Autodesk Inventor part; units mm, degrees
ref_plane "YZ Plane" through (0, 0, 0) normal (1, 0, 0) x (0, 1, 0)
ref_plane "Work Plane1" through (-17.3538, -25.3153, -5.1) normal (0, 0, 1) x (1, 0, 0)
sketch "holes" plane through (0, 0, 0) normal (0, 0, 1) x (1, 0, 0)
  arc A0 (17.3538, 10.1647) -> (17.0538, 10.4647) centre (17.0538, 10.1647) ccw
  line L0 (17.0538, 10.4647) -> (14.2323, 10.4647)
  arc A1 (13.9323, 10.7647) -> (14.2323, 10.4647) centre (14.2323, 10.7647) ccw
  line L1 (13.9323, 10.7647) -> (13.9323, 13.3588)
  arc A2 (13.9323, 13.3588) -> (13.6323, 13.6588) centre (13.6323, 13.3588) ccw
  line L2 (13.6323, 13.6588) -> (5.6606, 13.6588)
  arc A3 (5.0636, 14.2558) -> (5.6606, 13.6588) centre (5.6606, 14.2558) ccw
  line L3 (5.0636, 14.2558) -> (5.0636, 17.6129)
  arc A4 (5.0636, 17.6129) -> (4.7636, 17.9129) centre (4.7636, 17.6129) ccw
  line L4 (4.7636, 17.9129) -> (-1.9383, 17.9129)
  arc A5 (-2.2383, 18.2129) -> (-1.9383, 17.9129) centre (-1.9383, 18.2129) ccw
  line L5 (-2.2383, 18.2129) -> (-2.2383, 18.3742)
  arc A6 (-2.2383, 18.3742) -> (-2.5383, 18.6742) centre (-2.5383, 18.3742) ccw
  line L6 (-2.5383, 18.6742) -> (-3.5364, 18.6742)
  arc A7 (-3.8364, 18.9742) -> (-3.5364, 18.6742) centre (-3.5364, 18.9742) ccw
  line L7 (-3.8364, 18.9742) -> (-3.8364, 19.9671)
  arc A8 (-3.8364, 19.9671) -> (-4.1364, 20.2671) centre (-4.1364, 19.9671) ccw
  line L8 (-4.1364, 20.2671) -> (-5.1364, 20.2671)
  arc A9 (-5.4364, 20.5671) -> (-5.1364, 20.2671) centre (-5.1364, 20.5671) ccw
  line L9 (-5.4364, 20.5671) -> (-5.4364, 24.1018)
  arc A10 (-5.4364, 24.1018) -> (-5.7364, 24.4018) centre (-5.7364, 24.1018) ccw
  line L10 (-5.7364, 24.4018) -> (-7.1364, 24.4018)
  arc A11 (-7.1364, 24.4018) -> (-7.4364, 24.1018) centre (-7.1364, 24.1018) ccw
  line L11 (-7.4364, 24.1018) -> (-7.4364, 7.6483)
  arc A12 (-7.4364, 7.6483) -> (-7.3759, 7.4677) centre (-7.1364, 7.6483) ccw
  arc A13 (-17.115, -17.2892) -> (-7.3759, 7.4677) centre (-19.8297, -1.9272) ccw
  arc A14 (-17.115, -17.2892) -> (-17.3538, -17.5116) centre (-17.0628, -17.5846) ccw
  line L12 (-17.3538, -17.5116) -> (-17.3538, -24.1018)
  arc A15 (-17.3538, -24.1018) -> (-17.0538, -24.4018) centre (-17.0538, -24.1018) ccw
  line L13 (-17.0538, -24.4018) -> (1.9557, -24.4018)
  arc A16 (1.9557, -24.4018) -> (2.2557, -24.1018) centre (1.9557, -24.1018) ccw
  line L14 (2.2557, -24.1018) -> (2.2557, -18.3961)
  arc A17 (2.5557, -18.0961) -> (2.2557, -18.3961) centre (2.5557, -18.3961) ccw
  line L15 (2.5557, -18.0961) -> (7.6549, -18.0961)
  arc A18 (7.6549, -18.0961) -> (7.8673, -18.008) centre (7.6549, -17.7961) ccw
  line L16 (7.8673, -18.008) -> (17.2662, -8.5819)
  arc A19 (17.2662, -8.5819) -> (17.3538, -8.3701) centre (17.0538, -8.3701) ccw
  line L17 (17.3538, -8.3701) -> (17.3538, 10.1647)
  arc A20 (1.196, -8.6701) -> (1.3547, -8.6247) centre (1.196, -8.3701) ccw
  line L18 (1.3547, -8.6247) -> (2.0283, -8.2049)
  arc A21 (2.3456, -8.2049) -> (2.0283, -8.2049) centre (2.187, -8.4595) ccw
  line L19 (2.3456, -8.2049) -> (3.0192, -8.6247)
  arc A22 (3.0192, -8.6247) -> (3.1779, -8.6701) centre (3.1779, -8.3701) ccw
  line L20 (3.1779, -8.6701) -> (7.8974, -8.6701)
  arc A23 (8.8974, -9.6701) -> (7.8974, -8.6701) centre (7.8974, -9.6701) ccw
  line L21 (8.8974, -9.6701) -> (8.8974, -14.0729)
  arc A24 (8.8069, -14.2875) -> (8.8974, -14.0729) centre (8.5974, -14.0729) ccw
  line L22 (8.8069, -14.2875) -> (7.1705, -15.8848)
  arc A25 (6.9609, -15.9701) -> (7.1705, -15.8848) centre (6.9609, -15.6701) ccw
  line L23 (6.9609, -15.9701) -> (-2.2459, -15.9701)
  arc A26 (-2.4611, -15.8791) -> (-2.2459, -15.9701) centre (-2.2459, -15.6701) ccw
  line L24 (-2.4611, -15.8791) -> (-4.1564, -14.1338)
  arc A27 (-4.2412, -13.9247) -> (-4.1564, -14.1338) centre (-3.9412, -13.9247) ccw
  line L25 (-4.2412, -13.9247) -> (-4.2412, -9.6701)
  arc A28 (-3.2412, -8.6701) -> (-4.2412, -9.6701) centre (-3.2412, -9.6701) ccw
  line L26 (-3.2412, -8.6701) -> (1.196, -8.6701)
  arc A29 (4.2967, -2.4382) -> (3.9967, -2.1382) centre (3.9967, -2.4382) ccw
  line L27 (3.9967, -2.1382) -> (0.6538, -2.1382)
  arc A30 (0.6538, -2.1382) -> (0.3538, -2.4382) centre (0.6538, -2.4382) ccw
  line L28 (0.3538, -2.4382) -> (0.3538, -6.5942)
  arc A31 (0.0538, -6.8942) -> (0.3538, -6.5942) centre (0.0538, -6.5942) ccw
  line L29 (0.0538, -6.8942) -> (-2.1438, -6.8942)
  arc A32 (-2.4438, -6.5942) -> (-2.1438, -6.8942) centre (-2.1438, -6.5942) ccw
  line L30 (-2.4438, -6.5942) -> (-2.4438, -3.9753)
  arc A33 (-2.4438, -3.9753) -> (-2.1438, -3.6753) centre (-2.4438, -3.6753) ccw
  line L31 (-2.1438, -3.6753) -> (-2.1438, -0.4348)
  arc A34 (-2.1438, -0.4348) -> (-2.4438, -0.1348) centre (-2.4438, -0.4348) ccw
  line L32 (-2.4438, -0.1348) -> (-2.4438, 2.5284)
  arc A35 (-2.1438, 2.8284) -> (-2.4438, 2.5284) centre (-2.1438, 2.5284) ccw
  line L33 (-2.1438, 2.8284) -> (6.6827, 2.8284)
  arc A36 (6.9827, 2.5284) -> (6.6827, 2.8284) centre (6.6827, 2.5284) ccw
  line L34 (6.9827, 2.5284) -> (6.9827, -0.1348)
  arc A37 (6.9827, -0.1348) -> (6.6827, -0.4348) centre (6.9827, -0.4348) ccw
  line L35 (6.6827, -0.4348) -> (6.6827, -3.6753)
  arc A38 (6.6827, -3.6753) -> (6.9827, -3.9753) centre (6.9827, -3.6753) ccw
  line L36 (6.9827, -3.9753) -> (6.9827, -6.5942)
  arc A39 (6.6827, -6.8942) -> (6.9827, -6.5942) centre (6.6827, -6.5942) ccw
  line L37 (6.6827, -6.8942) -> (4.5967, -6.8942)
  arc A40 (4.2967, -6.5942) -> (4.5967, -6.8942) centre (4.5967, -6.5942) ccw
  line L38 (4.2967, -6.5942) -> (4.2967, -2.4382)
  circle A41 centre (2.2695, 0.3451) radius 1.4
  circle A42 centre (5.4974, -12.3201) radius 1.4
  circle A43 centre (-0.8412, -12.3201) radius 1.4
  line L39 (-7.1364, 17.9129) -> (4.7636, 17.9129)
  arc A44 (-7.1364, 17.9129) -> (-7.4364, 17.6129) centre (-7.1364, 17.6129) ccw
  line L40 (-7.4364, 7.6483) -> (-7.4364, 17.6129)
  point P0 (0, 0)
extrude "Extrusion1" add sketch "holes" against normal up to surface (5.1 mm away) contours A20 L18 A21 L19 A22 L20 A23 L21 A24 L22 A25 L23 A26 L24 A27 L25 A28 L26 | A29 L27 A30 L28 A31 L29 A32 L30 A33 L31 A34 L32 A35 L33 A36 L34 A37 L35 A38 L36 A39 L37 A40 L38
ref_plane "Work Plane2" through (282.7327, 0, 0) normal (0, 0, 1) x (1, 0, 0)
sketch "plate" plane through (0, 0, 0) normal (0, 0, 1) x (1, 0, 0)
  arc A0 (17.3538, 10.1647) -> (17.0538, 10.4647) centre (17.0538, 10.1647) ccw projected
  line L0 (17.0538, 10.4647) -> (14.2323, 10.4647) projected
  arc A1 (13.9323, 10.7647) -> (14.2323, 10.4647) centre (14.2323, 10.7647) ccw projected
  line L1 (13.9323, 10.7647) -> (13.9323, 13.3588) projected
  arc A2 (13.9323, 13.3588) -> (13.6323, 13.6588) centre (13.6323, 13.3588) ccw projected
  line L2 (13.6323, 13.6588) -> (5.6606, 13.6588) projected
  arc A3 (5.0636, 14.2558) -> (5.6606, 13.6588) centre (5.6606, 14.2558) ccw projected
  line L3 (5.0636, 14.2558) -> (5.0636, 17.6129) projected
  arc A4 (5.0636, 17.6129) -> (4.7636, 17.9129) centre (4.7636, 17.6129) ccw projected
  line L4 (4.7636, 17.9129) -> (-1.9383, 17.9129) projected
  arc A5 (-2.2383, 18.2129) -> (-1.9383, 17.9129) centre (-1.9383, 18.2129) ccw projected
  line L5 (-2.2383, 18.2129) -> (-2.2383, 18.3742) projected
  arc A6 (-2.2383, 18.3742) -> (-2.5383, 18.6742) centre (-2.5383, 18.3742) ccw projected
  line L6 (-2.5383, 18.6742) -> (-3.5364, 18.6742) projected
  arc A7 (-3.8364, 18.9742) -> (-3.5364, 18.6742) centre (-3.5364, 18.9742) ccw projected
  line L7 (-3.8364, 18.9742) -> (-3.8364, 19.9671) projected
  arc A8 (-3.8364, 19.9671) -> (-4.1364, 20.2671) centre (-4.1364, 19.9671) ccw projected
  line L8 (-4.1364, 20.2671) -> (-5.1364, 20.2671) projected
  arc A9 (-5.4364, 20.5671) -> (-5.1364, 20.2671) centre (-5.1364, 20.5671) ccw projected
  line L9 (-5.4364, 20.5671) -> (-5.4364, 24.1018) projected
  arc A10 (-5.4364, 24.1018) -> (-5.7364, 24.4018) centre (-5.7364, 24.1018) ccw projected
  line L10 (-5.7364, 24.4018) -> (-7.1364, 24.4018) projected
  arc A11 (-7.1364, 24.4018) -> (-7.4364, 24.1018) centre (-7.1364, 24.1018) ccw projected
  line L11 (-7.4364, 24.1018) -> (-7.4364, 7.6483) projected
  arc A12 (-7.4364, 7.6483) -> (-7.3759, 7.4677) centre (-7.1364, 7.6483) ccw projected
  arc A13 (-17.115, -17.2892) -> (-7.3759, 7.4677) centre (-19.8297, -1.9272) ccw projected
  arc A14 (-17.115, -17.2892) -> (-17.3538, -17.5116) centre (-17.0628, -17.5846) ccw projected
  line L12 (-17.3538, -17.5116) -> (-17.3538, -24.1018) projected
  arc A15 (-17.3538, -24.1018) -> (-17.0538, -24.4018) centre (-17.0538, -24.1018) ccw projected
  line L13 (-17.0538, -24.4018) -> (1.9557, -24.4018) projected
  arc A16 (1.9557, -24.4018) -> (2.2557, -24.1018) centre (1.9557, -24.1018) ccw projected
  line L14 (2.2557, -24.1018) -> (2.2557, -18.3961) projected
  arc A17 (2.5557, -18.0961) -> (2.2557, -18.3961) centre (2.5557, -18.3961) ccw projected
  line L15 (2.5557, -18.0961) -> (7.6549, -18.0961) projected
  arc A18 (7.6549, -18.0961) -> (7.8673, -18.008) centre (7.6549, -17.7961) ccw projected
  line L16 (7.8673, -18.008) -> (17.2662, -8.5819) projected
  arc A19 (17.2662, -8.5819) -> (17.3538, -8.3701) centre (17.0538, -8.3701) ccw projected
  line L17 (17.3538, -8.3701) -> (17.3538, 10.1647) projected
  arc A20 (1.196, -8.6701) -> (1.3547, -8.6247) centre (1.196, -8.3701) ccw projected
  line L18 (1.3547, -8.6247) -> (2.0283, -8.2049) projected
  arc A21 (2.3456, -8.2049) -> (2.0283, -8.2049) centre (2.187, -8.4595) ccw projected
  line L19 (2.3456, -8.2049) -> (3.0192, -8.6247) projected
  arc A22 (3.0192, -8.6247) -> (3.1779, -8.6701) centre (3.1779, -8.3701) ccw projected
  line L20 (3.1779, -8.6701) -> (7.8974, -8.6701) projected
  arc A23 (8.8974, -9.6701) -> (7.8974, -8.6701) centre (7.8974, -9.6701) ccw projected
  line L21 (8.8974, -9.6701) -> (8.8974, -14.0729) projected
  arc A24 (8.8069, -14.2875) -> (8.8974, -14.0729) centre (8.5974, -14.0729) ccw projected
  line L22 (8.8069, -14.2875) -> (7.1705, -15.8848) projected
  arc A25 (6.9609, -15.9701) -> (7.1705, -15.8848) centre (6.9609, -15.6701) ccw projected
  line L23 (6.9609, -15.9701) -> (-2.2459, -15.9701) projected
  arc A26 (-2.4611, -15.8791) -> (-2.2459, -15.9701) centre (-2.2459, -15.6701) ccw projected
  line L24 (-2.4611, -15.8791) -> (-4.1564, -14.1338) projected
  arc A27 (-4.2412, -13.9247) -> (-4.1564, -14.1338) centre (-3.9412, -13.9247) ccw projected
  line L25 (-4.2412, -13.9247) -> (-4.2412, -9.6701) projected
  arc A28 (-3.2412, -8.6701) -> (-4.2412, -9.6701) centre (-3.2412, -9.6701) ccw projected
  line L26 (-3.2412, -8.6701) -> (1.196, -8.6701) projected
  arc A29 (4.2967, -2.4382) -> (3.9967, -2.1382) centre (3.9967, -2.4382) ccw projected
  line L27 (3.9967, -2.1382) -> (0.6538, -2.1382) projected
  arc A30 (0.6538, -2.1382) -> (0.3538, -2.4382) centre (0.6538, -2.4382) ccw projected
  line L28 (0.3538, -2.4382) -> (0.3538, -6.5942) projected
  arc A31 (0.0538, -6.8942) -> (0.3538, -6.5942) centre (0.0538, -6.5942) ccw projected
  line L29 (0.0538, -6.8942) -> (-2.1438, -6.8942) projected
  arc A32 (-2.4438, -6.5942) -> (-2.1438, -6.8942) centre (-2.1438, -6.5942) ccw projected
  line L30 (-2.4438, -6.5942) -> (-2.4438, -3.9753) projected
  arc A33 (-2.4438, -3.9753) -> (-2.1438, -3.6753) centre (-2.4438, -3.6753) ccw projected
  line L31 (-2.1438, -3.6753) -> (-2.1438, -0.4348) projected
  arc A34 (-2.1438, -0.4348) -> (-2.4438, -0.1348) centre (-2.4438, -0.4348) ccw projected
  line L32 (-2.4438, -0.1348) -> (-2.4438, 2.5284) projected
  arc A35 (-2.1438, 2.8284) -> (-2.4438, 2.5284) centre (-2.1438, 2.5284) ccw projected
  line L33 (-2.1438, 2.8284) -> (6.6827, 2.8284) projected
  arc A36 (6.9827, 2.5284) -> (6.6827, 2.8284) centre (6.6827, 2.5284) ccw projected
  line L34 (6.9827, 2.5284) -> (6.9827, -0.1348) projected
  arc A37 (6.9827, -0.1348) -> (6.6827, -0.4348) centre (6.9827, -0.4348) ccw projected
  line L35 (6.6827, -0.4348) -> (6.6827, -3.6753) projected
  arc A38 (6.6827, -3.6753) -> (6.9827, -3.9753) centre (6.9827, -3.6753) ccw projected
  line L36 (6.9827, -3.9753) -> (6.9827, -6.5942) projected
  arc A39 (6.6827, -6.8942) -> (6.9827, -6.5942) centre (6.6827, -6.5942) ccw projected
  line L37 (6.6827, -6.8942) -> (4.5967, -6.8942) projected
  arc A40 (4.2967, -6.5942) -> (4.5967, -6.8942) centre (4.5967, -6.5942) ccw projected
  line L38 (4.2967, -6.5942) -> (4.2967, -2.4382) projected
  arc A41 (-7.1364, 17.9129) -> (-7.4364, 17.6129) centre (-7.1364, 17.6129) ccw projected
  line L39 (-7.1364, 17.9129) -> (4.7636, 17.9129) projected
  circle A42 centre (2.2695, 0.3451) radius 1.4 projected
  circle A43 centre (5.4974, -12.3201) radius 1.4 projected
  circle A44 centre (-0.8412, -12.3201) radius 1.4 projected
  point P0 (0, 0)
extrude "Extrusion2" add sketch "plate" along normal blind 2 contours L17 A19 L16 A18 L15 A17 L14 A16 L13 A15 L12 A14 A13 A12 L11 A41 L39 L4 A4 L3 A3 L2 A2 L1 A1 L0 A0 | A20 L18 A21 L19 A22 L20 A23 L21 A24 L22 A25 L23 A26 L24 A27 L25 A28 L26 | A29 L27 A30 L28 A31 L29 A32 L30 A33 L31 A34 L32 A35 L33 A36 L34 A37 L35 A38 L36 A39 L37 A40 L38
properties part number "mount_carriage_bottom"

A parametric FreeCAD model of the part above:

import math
import FreeCAD as App
import Part
import Sketcher
from FreeCAD import Vector

doc = App.newDocument("Part")
body = doc.addObject("PartDesign::Body", "Body")
body.AllowCompound = True

sketch1 = doc.addObject("Sketcher::SketchObject", "Sketch")
body.addObject(sketch1)
sketch1.AttachmentSupport = (doc.XY_Plane, [""])
sketch1.MapMode = "FlatFace"
sketch1.addGeometry([
    Part.ArcOfCircle(Part.Circle(Vector(1.196, -8.3701, 0), Vector(0, 0, 1), 0.3), math.radians(-90), math.radians(-58.063445)),
    Part.LineSegment(Vector(1.196, -8.6701, 0), Vector(-3.2412, -8.6701, 0)),
    Part.ArcOfCircle(Part.Circle(Vector(-3.2412, -9.6701, 0), Vector(0, 0, 1), 1), math.radians(90), math.radians(180)),
    Part.LineSegment(Vector(-4.2412, -9.6701, 0), Vector(-4.2412, -13.9247, 0)),
    Part.ArcOfCircle(Part.Circle(Vector(-3.9412, -13.9247, 0), Vector(0, 0, 1), 0.3), math.radians(180), math.radians(224.176337)),
    Part.LineSegment(Vector(-4.1564, -14.1338, 0), Vector(-2.4611, -15.8791, 0)),
    Part.ArcOfCircle(Part.Circle(Vector(-2.2459, -15.6701, 0), Vector(0, 0, 1), 0.299987), math.radians(-135.837361), math.radians(-90)),
    Part.LineSegment(Vector(-2.2459, -15.9701, 0), Vector(6.9609, -15.9701, 0)),
    Part.ArcOfCircle(Part.Circle(Vector(6.9609, -15.6701, 0), Vector(0, 0, 1), 0.3), math.radians(-90), math.radians(-45.68865)),
    Part.LineSegment(Vector(7.1705, -15.8848, 0), Vector(8.8069, -14.2875, 0)),
    Part.ArcOfCircle(Part.Circle(Vector(8.5974, -14.0729, 0), Vector(0, 0, 1), 0.299906), math.radians(-45.688975), math.radians(0)),
    Part.LineSegment(Vector(8.8974, -14.0729, 0), Vector(8.8974, -9.6701, 0)),
    Part.ArcOfCircle(Part.Circle(Vector(7.8974, -9.6701, 0), Vector(0, 0, 1), 1), math.radians(0), math.radians(90)),
    Part.LineSegment(Vector(7.8974, -8.6701, 0), Vector(3.1779, -8.6701, 0)),
    Part.ArcOfCircle(Part.Circle(Vector(3.1779, -8.3701, 0), Vector(0, 0, 1), 0.300011), math.radians(-121.936555), math.radians(-90)),
    Part.LineSegment(Vector(3.0192, -8.6247, 0), Vector(2.3456, -8.2049, 0)),
    Part.ArcOfCircle(Part.Circle(Vector(2.187, -8.4595, 0), Vector(0, 0, 1), 0.299959), math.radians(58.079655), math.radians(121.936555)),
    Part.LineSegment(Vector(2.0283, -8.2049, 0), Vector(1.3547, -8.6247, 0)),
    Part.Circle(Vector(-0.8412, -12.3201, 0), Vector(0, 0, 1), 1.4),
    Part.Circle(Vector(5.4974, -12.3201, 0), Vector(0, 0, 1), 1.4),
    Part.ArcOfCircle(Part.Circle(Vector(3.9967, -2.4382, 0), Vector(0, 0, 1), 0.3), math.radians(0), math.radians(90)),
    Part.LineSegment(Vector(4.2967, -2.4382, 0), Vector(4.2967, -6.5942, 0)),
    Part.ArcOfCircle(Part.Circle(Vector(4.5967, -6.5942, 0), Vector(0, 0, 1), 0.3), math.radians(180), math.radians(270)),
    Part.LineSegment(Vector(4.5967, -6.8942, 0), Vector(6.6827, -6.8942, 0)),
    Part.ArcOfCircle(Part.Circle(Vector(6.6827, -6.5942, 0), Vector(0, 0, 1), 0.3), math.radians(-90), math.radians(0)),
    Part.LineSegment(Vector(6.9827, -6.5942, 0), Vector(6.9827, -3.9753, 0)),
    Part.ArcOfCircle(Part.Circle(Vector(6.9827, -3.6753, 0), Vector(0, 0, 1), 0.3), math.radians(180), math.radians(270)),
    Part.LineSegment(Vector(6.6827, -3.6753, 0), Vector(6.6827, -0.4348, 0)),
    Part.ArcOfCircle(Part.Circle(Vector(6.9827, -0.4348, 0), Vector(0, 0, 1), 0.3), math.radians(90), math.radians(180)),
    Part.LineSegment(Vector(6.9827, -0.1348, 0), Vector(6.9827, 2.5284, 0)),
    Part.ArcOfCircle(Part.Circle(Vector(6.6827, 2.5284, 0), Vector(0, 0, 1), 0.3), math.radians(0), math.radians(90)),
    Part.LineSegment(Vector(6.6827, 2.8284, 0), Vector(-2.1438, 2.8284, 0)),
    Part.ArcOfCircle(Part.Circle(Vector(-2.1438, 2.5284, 0), Vector(0, 0, 1), 0.3), math.radians(90), math.radians(180)),
    Part.LineSegment(Vector(-2.4438, 2.5284, 0), Vector(-2.4438, -0.1348, 0)),
    Part.ArcOfCircle(Part.Circle(Vector(-2.4438, -0.4348, 0), Vector(0, 0, 1), 0.3), math.radians(0), math.radians(90)),
    Part.LineSegment(Vector(-2.1438, -0.4348, 0), Vector(-2.1438, -3.6753, 0)),
    Part.ArcOfCircle(Part.Circle(Vector(-2.4438, -3.6753, 0), Vector(0, 0, 1), 0.3), math.radians(-90), math.radians(0)),
    Part.LineSegment(Vector(-2.4438, -3.9753, 0), Vector(-2.4438, -6.5942, 0)),
    Part.ArcOfCircle(Part.Circle(Vector(-2.1438, -6.5942, 0), Vector(0, 0, 1), 0.3), math.radians(180), math.radians(270)),
    Part.LineSegment(Vector(-2.1438, -6.8942, 0), Vector(0.0538, -6.8942, 0)),
    Part.ArcOfCircle(Part.Circle(Vector(0.0538, -6.5942, 0), Vector(0, 0, 1), 0.3), math.radians(-90), math.radians(0)),
    Part.LineSegment(Vector(0.3538, -6.5942, 0), Vector(0.3538, -2.4382, 0)),
    Part.ArcOfCircle(Part.Circle(Vector(0.6538, -2.4382, 0), Vector(0, 0, 1), 0.3), math.radians(90), math.radians(180)),
    Part.LineSegment(Vector(0.6538, -2.1382, 0), Vector(3.9967, -2.1382, 0)),
    Part.Circle(Vector(2.2695, 0.3451, 0), Vector(0, 0, 1), 1.4),
], False)
sketch1.addConstraint([
    Sketcher.Constraint("Tangent", 0, 1, 1, 1),
    Sketcher.Constraint("Tangent", 1, 2, 2, 1),
    Sketcher.Constraint("Tangent", 2, 2, 3, 1),
    Sketcher.Constraint("Tangent", 3, 2, 4, 1),
    Sketcher.Constraint("Tangent", 4, 2, 5, 1),
    Sketcher.Constraint("Tangent", 5, 2, 6, 1),
    Sketcher.Constraint("Tangent", 6, 2, 7, 1),
    Sketcher.Constraint("Tangent", 7, 2, 8, 1),
    Sketcher.Constraint("Tangent", 8, 2, 9, 1),
    Sketcher.Constraint("Tangent", 9, 2, 10, 1),
    Sketcher.Constraint("Tangent", 10, 2, 11, 1),
    Sketcher.Constraint("Tangent", 11, 2, 12, 1),
    Sketcher.Constraint("Tangent", 12, 2, 13, 1),
    Sketcher.Constraint("Tangent", 13, 2, 14, 2),
    Sketcher.Constraint("Tangent", 14, 1, 15, 1),
    Sketcher.Constraint("Tangent", 15, 2, 16, 1),
    Sketcher.Constraint("Tangent", 16, 2, 17, 1),
    Sketcher.Constraint("Tangent", 17, 2, 0, 2),
    Sketcher.Constraint("Tangent", 20, 1, 21, 1),
    Sketcher.Constraint("Tangent", 21, 2, 22, 1),
    Sketcher.Constraint("Tangent", 22, 2, 23, 1),
    Sketcher.Constraint("Tangent", 23, 2, 24, 1),
    Sketcher.Constraint("Tangent", 24, 2, 25, 1),
    Sketcher.Constraint("Coincident", 25, 2, 26, 2),
    Sketcher.Constraint("Tangent", 26, 1, 27, 1),
    Sketcher.Constraint("Tangent", 27, 2, 28, 2),
    Sketcher.Constraint("Coincident", 28, 1, 29, 1),
    Sketcher.Constraint("Tangent", 29, 2, 30, 1),
    Sketcher.Constraint("Tangent", 30, 2, 31, 1),
    Sketcher.Constraint("Tangent", 31, 2, 32, 1),
    Sketcher.Constraint("Tangent", 32, 2, 33, 1),
    Sketcher.Constraint("Coincident", 33, 2, 34, 2),
    Sketcher.Constraint("Tangent", 34, 1, 35, 1),
    Sketcher.Constraint("Tangent", 35, 2, 36, 2),
    Sketcher.Constraint("Coincident", 36, 1, 37, 1),
    Sketcher.Constraint("Tangent", 37, 2, 38, 1),
    Sketcher.Constraint("Tangent", 38, 2, 39, 1),
    Sketcher.Constraint("Tangent", 39, 2, 40, 1),
    Sketcher.Constraint("Tangent", 40, 2, 41, 1),
    Sketcher.Constraint("Tangent", 41, 2, 42, 2),
    Sketcher.Constraint("Tangent", 42, 1, 43, 1),
    Sketcher.Constraint("Tangent", 43, 2, 20, 2),
    Sketcher.Constraint("Horizontal", 1),
    Sketcher.Constraint("Vertical", 3),
    Sketcher.Constraint("Horizontal", 7),
    Sketcher.Constraint("Vertical", 11),
    Sketcher.Constraint("Horizontal", 13),
    Sketcher.Constraint("Vertical", 21),
    Sketcher.Constraint("Horizontal", 23),
    Sketcher.Constraint("Vertical", 25),
    Sketcher.Constraint("Vertical", 27),
    Sketcher.Constraint("Vertical", 29),
    Sketcher.Constraint("Horizontal", 31),
    Sketcher.Constraint("Vertical", 33),
    Sketcher.Constraint("Vertical", 35),
    Sketcher.Constraint("Vertical", 37),
    Sketcher.Constraint("Horizontal", 39),
    Sketcher.Constraint("Vertical", 41),
    Sketcher.Constraint("Horizontal", 43),
    Sketcher.Constraint("Equal", 0, 4),
    Sketcher.Constraint("Equal", 4, 6),
    Sketcher.Constraint("Equal", 6, 8),
    Sketcher.Constraint("Equal", 8, 10),
    Sketcher.Constraint("Equal", 2, 12),
    Sketcher.Constraint("Equal", 10, 14),
    Sketcher.Constraint("Equal", 14, 16),
    Sketcher.Constraint("Equal", 18, 19),
    Sketcher.Constraint("Equal", 16, 20),
    Sketcher.Constraint("Equal", 20, 22),
    Sketcher.Constraint("Equal", 22, 24),
    Sketcher.Constraint("Equal", 24, 26),
    Sketcher.Constraint("Equal", 26, 28),
    Sketcher.Constraint("Equal", 28, 30),
    Sketcher.Constraint("Equal", 30, 32),
    Sketcher.Constraint("Equal", 32, 34),
    Sketcher.Constraint("Equal", 34, 36),
    Sketcher.Constraint("Equal", 36, 38),
    Sketcher.Constraint("Equal", 38, 40),
    Sketcher.Constraint("Equal", 40, 42),
    Sketcher.Constraint("Equal", 19, 44),
    Sketcher.Constraint("Horizontal", 2, 3, 12, 3),
    Sketcher.Constraint("Horizontal", 18, 3, 19, 3),
    Sketcher.Constraint("Horizontal", 28, 3, 34, 3),
    Sketcher.Constraint("Horizontal", 26, 3, 36, 3),
    Sketcher.Constraint("Horizontal", 24, 3, 38, 3),
    Sketcher.Constraint("Horizontal", 15, 2, 16, 2),
    Sketcher.Constraint("Vertical", 24, 3, 30, 3),
    Sketcher.Constraint("Vertical", 32, 3, 38, 3),
    Sketcher.Constraint("Vertical", 28, 3, 24, 2),
    Sketcher.Constraint("Vertical", 36, 3, 32, 2),
    Sketcher.Constraint("Radius", 2, 1.0),
    Sketcher.Constraint("Diameter", 18, 2.8),
    Sketcher.Constraint("Radius", 0, 0.3),
    Sketcher.Constraint("DistanceX", 23, 1, 23, 2, 2.086),
    Sketcher.Constraint("DistanceX", 43, 1, 43, 2, 3.343),
    Sketcher.Constraint("DistanceY", 21, 2, 21, 1, 4.156),
    Sketcher.Constraint("DistanceY", 25, 1, 25, 2, 2.619),
    Sketcher.Constraint("DistanceY", 0, 3, -1, 1, 8.37),
    Sketcher.Constraint("DistanceY", 6, 3, -1, 1, 15.67),
    Sketcher.Constraint("DistanceY", 18, 3, -1, 1, 12.32),
    Sketcher.Constraint("DistanceX", 1, 2, 1, 1, 4.4372),
    Sketcher.Constraint("DistanceX", 7, 1, 7, 2, 9.2068),
    Sketcher.Constraint("DistanceX", 13, 2, 13, 1, 4.7195),
    Sketcher.Constraint("DistanceX", 31, 2, 31, 1, 8.8265),
    Sketcher.Constraint("DistanceY", 3, 2, 3, 1, 4.2546),
    Sketcher.Constraint("DistanceY", 11, 1, 11, 2, 4.4028),
    Sketcher.Constraint("DistanceY", 27, 1, 27, 2, 3.2405),
    Sketcher.Constraint("DistanceY", 29, 1, 29, 2, 2.6632),
    Sketcher.Constraint("DistanceX", -1, 1, 0, 3, 1.196),
    Sketcher.Constraint("DistanceX", 6, 3, -1, 1, 2.246),
    Sketcher.Constraint("DistanceX", -1, 1, 14, 3, 3.178),
    Sketcher.Constraint("DistanceY", -1, 1, 44, 3, 0.345),
    Sketcher.Constraint("DistanceY", 15, 2, -1, 1, 8.205),
    Sketcher.Constraint("DistanceX", 18, 3, -1, 1, 0.8412),
    Sketcher.Constraint("DistanceX", -1, 1, 19, 3, 5.4974),
    Sketcher.Constraint("DistanceX", -1, 1, 20, 3, 3.9967),
    Sketcher.Constraint("DistanceY", 20, 3, -1, 1, 2.4382),
    Sketcher.Constraint("DistanceX", -1, 1, 44, 3, 2.2695),
])
pad1 = doc.addObject("PartDesign::Pad", "Pad")
body.addObject(pad1)
pad1.Profile = sketch1
pad1.Length = 5.1
pad1.Reversed = True

sketch2 = doc.addObject("Sketcher::SketchObject", "Sketch001")
body.addObject(sketch2)
sketch2.AttachmentSupport = (doc.XY_Plane, [""])
sketch2.MapMode = "FlatFace"
sketch2.addGeometry([
    Part.LineSegment(Vector(17.3538, -8.3701, 0), Vector(17.3538, 10.1647, 0)),
    Part.ArcOfCircle(Part.Circle(Vector(17.0538, 10.1647, 0), Vector(0, 0, 1), 0.3), math.radians(0), math.radians(90)),
    Part.LineSegment(Vector(17.0538, 10.4647, 0), Vector(14.2323, 10.4647, 0)),
    Part.ArcOfCircle(Part.Circle(Vector(14.2323, 10.7647, 0), Vector(0, 0, 1), 0.3), math.radians(180), math.radians(270)),
    Part.LineSegment(Vector(13.9323, 10.7647, 0), Vector(13.9323, 13.3588, 0)),
    Part.ArcOfCircle(Part.Circle(Vector(13.6323, 13.3588, 0), Vector(0, 0, 1), 0.3), math.radians(0), math.radians(90)),
    Part.LineSegment(Vector(13.6323, 13.6588, 0), Vector(5.6606, 13.6588, 0)),
    Part.ArcOfCircle(Part.Circle(Vector(5.6606, 14.2558, 0), Vector(0, 0, 1), 0.597), math.radians(180), math.radians(270)),
    Part.LineSegment(Vector(5.0636, 14.2558, 0), Vector(5.0636, 17.6129, 0)),
    Part.ArcOfCircle(Part.Circle(Vector(4.7636, 17.6129, 0), Vector(0, 0, 1), 0.3), math.radians(0), math.radians(90)),
    Part.LineSegment(Vector(4.7636, 17.9129, 0), Vector(-7.1364, 17.9129, 0)),
    Part.ArcOfCircle(Part.Circle(Vector(-7.1364, 17.6129, 0), Vector(0, 0, 1), 0.3), math.radians(90), math.radians(180)),
    Part.LineSegment(Vector(-7.4364, 17.6129, 0), Vector(-7.4364, 7.6483, 0)),
    Part.ArcOfCircle(Part.Circle(Vector(-7.1364, 7.6483, 0), Vector(0, 0, 1), 0.3), math.radians(180), math.radians(217.018886)),
    Part.ArcOfCircle(Part.Circle(Vector(-19.8297, -1.9272, 0), Vector(0, 0, 1), 15.600021), math.radians(-79.978425), math.radians(37.030179)),
    Part.ArcOfCircle(Part.Circle(Vector(-17.0628, -17.5846, 0), Vector(0, 0, 1), 0.299977), math.radians(100.021257), math.radians(165.917438)),
    Part.LineSegment(Vector(-17.3538, -17.5116, 0), Vector(-17.3538, -24.1018, 0)),
    Part.ArcOfCircle(Part.Circle(Vector(-17.0538, -24.1018, 0), Vector(0, 0, 1), 0.3), math.radians(180), math.radians(270)),
    Part.LineSegment(Vector(-17.0538, -24.4018, 0), Vector(1.9557, -24.4018, 0)),
    Part.ArcOfCircle(Part.Circle(Vector(1.9557, -24.1018, 0), Vector(0, 0, 1), 0.3), math.radians(-90), math.radians(0)),
    Part.LineSegment(Vector(2.2557, -24.1018, 0), Vector(2.2557, -18.3961, 0)),
    Part.ArcOfCircle(Part.Circle(Vector(2.5557, -18.3961, 0), Vector(0, 0, 1), 0.3), math.radians(90), math.radians(180)),
    Part.LineSegment(Vector(2.5557, -18.0961, 0), Vector(7.6549, -18.0961, 0)),
    Part.ArcOfCircle(Part.Circle(Vector(7.6549, -17.7961, 0), Vector(0, 0, 1), 0.3), math.radians(-90), math.radians(-44.932482)),
    Part.LineSegment(Vector(7.8673, -18.008, 0), Vector(17.2662, -8.5819, 0)),
    Part.ArcOfCircle(Part.Circle(Vector(17.0538, -8.3701, 0), Vector(0, 0, 1), 0.299955), math.radians(-44.918959), math.radians(0)),
    Part.Circle(Vector(-0.8412, -12.3201, 0), Vector(0, 0, 1), 1.4),
    Part.Circle(Vector(5.4974, -12.3201, 0), Vector(0, 0, 1), 1.4),
    Part.Circle(Vector(2.2695, 0.3451, 0), Vector(0, 0, 1), 1.4),
], False)
sketch2.addConstraint([
    Sketcher.Constraint("Tangent", 0, 2, 1, 1),
    Sketcher.Constraint("Tangent", 1, 2, 2, 1),
    Sketcher.Constraint("Tangent", 2, 2, 3, 2),
    Sketcher.Constraint("Tangent", 3, 1, 4, 1),
    Sketcher.Constraint("Tangent", 4, 2, 5, 1),
    Sketcher.Constraint("Tangent", 5, 2, 6, 1),
    Sketcher.Constraint("Tangent", 6, 2, 7, 2),
    Sketcher.Constraint("Tangent", 7, 1, 8, 1),
    Sketcher.Constraint("Tangent", 8, 2, 9, 1),
    Sketcher.Constraint("Tangent", 9, 2, 10, 1),
    Sketcher.Constraint("Tangent", 10, 2, 11, 1),
    Sketcher.Constraint("Tangent", 11, 2, 12, 1),
    Sketcher.Constraint("Tangent", 12, 2, 13, 1),
    Sketcher.Constraint("Tangent", 13, 2, 14, 2),
    Sketcher.Constraint("Tangent", 14, 1, 15, 1),
    Sketcher.Constraint("Coincident", 15, 2, 16, 1),
    Sketcher.Constraint("Tangent", 16, 2, 17, 1),
    Sketcher.Constraint("Tangent", 17, 2, 18, 1),
    Sketcher.Constraint("Tangent", 18, 2, 19, 1),
    Sketcher.Constraint("Tangent", 19, 2, 20, 1),
    Sketcher.Constraint("Tangent", 20, 2, 21, 2),
    Sketcher.Constraint("Tangent", 21, 1, 22, 1),
    Sketcher.Constraint("Tangent", 22, 2, 23, 1),
    Sketcher.Constraint("Tangent", 23, 2, 24, 1),
    Sketcher.Constraint("Tangent", 24, 2, 25, 1),
    Sketcher.Constraint("Tangent", 25, 2, 0, 1),
    Sketcher.Constraint("Vertical", 0),
    Sketcher.Constraint("Horizontal", 2),
    Sketcher.Constraint("Vertical", 4),
    Sketcher.Constraint("Horizontal", 6),
    Sketcher.Constraint("Vertical", 8),
    Sketcher.Constraint("Horizontal", 10),
    Sketcher.Constraint("Vertical", 12),
    Sketcher.Constraint("Vertical", 16),
    Sketcher.Constraint("Horizontal", 18),
    Sketcher.Constraint("Vertical", 20),
    Sketcher.Constraint("Horizontal", 22),
    Sketcher.Constraint("Equal", 1, 3),
    Sketcher.Constraint("Equal", 3, 5),
    Sketcher.Constraint("Equal", 5, 9),
    Sketcher.Constraint("Equal", 9, 11),
    Sketcher.Constraint("Equal", 11, 13),
    Sketcher.Constraint("Equal", 13, 15),
    Sketcher.Constraint("Equal", 15, 17),
    Sketcher.Constraint("Equal", 17, 19),
    Sketcher.Constraint("Equal", 19, 21),
    Sketcher.Constraint("Equal", 21, 23),
    Sketcher.Constraint("Equal", 23, 25),
    Sketcher.Constraint("Equal", 26, 27),
    Sketcher.Constraint("Equal", 27, 28),
    Sketcher.Constraint("Horizontal", 26, 3, 27, 3),
    Sketcher.Constraint("Diameter", 26, 2.8),
    Sketcher.Constraint("Radius", 1, 0.3),
    Sketcher.Constraint("Radius", 14, 15.6),
    Sketcher.Constraint("DistanceX", 10, 2, 10, 1, 11.9),
    Sketcher.Constraint("Radius", 7, 0.597),
    Sketcher.Constraint("DistanceY", 4, 1, 4, 2, 2.594),
    Sketcher.Constraint("DistanceY", 8, 1, 8, 2, 3.357),
    Sketcher.Constraint("DistanceY", 25, 3, -1, 1, 8.37),
    Sketcher.Constraint("DistanceY", 26, 3, -1, 1, 12.32),
    Sketcher.Constraint("DistanceY", 14, 3, 11, 3, 19.54),
    Sketcher.Constraint("DistanceY", 17, 3, 13, 3, 31.75),
    Sketcher.Constraint("DistanceX", 2, 2, 2, 1, 2.8215),
    Sketcher.Constraint("DistanceX", 6, 2, 6, 1, 7.9717),
    Sketcher.Constraint("DistanceX", 18, 1, 18, 2, 19.0095),
    Sketcher.Constraint("DistanceX", 22, 1, 22, 2, 5.0992),
    Sketcher.Constraint("DistanceY", 0, 1, 0, 2, 18.5348),
    Sketcher.Constraint("DistanceY", 12, 2, 12, 1, 9.9646),
    Sketcher.Constraint("DistanceY", 16, 2, 16, 1, 6.5902),
    Sketcher.Constraint("DistanceY", 20, 1, 20, 2, 5.7057),
    Sketcher.Constraint("DistanceX", -1, 1, 23, 3, 7.655),
    Sketcher.Constraint("DistanceY", -1, 1, 28, 3, 0.345),
    Sketcher.Constraint("DistanceX", 13, 2, -1, 1, 7.376),
    Sketcher.Constraint("DistanceX", 26, 3, 21, 3, 3.397),
    Sketcher.Constraint("DistanceX", 13, 3, 28, 3, 9.406),
    Sketcher.Constraint("DistanceX", 28, 3, 27, 3, 3.228),
])
pad2 = doc.addObject("PartDesign::Pad", "Pad001")
body.addObject(pad2)
pad2.Profile = sketch2
pad2.Length = 2

doc.recompute()
